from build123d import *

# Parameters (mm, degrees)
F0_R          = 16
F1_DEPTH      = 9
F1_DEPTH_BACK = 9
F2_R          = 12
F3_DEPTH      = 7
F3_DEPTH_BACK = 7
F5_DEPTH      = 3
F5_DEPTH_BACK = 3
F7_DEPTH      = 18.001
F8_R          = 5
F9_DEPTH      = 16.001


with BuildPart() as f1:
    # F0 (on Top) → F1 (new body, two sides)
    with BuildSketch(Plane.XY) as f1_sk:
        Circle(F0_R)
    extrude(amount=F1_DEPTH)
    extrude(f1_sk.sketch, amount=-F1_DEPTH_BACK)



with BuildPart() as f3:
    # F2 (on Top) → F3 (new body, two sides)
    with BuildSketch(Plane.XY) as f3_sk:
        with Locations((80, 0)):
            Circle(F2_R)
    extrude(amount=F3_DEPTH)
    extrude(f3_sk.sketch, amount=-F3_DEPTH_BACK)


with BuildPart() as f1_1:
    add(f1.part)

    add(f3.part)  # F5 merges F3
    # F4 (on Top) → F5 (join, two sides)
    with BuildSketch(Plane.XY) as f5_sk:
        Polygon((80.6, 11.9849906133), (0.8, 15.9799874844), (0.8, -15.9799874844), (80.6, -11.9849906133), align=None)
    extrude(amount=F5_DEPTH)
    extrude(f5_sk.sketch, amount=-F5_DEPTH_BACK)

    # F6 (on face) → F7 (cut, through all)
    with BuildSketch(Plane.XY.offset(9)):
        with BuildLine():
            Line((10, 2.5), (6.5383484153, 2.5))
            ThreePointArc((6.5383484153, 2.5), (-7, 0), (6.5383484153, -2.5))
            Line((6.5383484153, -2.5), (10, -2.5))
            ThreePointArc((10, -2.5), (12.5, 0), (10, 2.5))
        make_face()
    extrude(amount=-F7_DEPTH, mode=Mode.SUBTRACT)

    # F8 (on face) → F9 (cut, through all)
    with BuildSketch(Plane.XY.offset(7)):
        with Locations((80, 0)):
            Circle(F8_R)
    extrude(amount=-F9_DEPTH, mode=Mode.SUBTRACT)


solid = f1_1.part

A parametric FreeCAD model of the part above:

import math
import FreeCAD as App
import Part
import Sketcher
from FreeCAD import Vector

doc = App.newDocument("Part")
body = doc.addObject("PartDesign::Body", "Body")

sketch1 = body.newObject("Sketcher::SketchObject", "Sketch")
sketch1.AttachmentSupport = (doc.getObject("XY_Plane"), [""])
sketch1.MapMode = "FlatFace"
sketch1.addGeometry(Part.Circle(Vector(0, 0, 0), Vector(0, 0, 1), 16), False)
sketch1.addConstraint([
    Sketcher.Constraint("Coincident", 0, 3, -1, 1),
    Sketcher.Constraint("Diameter", 0, 32.0),
])
pad1 = body.newObject("PartDesign::Pad", "Pad")
pad1.Profile = sketch1
pad1.Type = "TwoLengths"
pad1.Length = 9
pad1.Length2 = 9
body2 = doc.addObject("PartDesign::Body", "Body001")

sketch2 = body2.newObject("Sketcher::SketchObject", "Sketch001")
sketch2.AttachmentSupport = (doc.getObject("XY_Plane001"), [""])
sketch2.MapMode = "FlatFace"
sketch2.addGeometry(Part.Circle(Vector(80, 0, 0), Vector(0, 0, 1), 12), False)
sketch2.addConstraint([
    Sketcher.Constraint("PointOnObject", 0, 3, -1),
    Sketcher.Constraint("Diameter", 0, 24.0),
    Sketcher.Constraint("DistanceX", -1, 1, 0, 3, 80.0),
])
pad2 = body2.newObject("PartDesign::Pad", "Pad001")
pad2.Profile = sketch2
pad2.Type = "TwoLengths"
pad2.Length = 7
pad2.Length2 = 7
body.AllowCompound = True
doc.recompute()

boolean = body.newObject("PartDesign::Boolean", "Boolean")
boolean.Type = "Fuse"
boolean.addObjects([body2])

sketch3 = body.newObject("Sketcher::SketchObject", "Sketch002")
sketch3.AttachmentSupport = (doc.getObject("XY_Plane"), [""])
sketch3.MapMode = "FlatFace"
sketch3.addGeometry([
    Part.LineSegment(Vector(80.6, 11.984991, 0), Vector(0.8, 15.979987, 0)),
    Part.LineSegment(Vector(0.8, 15.979987, 0), Vector(0.8, -15.979987, 0)),
    Part.LineSegment(Vector(0.8, -15.979987, 0), Vector(80.6, -11.984991, 0)),
    Part.LineSegment(Vector(80.6, -11.984991, 0), Vector(80.6, 11.984991, 0)),
], False)
sketch3.addConstraint([
    Sketcher.Constraint("Coincident", 0, 2, 1, 1),
    Sketcher.Constraint("Coincident", 1, 2, 2, 1),
    Sketcher.Constraint("Coincident", 2, 2, 3, 1),
    Sketcher.Constraint("Coincident", 3, 2, 0, 1),
    Sketcher.Constraint("Vertical", 1),
    Sketcher.Constraint("Vertical", 3),
    Sketcher.Constraint("Equal", 0, 2),
    Sketcher.Constraint("DistanceX", -1, 1, 0, 2, 0.8),
    Sketcher.Constraint("DistanceX", -1, 1, 2, 2, 80.6),
    Sketcher.Constraint("DistanceY", 3, 1, 3, 2, 23.969981),
    Sketcher.Constraint("DistanceY", 1, 2, 1, 1, 31.959975),
    Sketcher.Constraint("DistanceY", 2, 2, -1, 1, 11.984991),
])
pad3 = body.newObject("PartDesign::Pad", "Pad002")
pad3.Profile = sketch3
pad3.Type = "TwoLengths"
pad3.Length = 3
pad3.Length2 = 3

sketch4 = body.newObject("Sketcher::SketchObject", "Sketch003")
sketch4.AttachmentSupport = (doc.getObject("XY_Plane"), [""])
sketch4.MapMode = "FlatFace"
sketch4.AttachmentOffset = App.Placement(Vector(0, 0, 9), App.Rotation())
sketch4.addGeometry([
    Part.LineSegment(Vector(10, 2.5, 0), Vector(6.538348, 2.5, 0)),
    Part.ArcOfCircle(Part.Circle(Vector(0, 0, 0), Vector(0, 0, 1), 7), math.radians(20.924832), math.radians(339.075168)),
    Part.LineSegment(Vector(6.538348, -2.5, 0), Vector(10, -2.5, 0)),
    Part.ArcOfCircle(Part.Circle(Vector(10, 0, 0), Vector(0, 0, 1), 2.5), math.radians(-90), math.radians(90)),
], False)
sketch4.addConstraint([
    Sketcher.Constraint("Coincident", 0, 2, 1, 1),
    Sketcher.Constraint("Coincident", 1, 2, 2, 1),
    Sketcher.Constraint("Tangent", 2, 2, 3, 1),
    Sketcher.Constraint("Tangent", 3, 2, 0, 1),
    Sketcher.Constraint("Horizontal", 0),
    Sketcher.Constraint("Horizontal", 2),
    Sketcher.Constraint("Coincident", 1, 3, -1, 1),
    Sketcher.Constraint("PointOnObject", 3, 3, -1),
    Sketcher.Constraint("Radius", 1, 7.0),
    Sketcher.Constraint("Radius", 3, 2.5),
    Sketcher.Constraint("DistanceX", -1, 1, 3, 3, 10.0),
])
pocket1 = body.newObject("PartDesign::Pocket", "Pocket")
pocket1.Profile = sketch4
pocket1.Type = "ThroughAll"

sketch5 = body.newObject("Sketcher::SketchObject", "Sketch004")
sketch5.AttachmentSupport = (doc.getObject("XY_Plane"), [""])
sketch5.MapMode = "FlatFace"
sketch5.AttachmentOffset = App.Placement(Vector(0, 0, 7), App.Rotation())
sketch5.addGeometry(Part.Circle(Vector(80, 0, 0), Vector(0, 0, 1), 5), False)
sketch5.addConstraint([
    Sketcher.Constraint("PointOnObject", 0, 3, -1),
    Sketcher.Constraint("Diameter", 0, 10.0),
    Sketcher.Constraint("DistanceX", -1, 1, 0, 3, 80.0),
])
pocket2 = body.newObject("PartDesign::Pocket", "Pocket001")
pocket2.Profile = sketch5
pocket2.Type = "ThroughAll"

doc.recompute()
